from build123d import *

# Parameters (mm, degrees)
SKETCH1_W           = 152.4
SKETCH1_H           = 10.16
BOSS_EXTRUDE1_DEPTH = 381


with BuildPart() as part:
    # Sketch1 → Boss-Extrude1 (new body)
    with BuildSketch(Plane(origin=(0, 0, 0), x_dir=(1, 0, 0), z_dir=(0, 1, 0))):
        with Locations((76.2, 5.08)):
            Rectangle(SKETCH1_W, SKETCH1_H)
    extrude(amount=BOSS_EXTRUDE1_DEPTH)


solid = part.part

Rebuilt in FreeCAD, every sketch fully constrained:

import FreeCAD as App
import Part
import Sketcher
Q = App.Units.Quantity


def add_polygon(sketch, points):
    """Adds a closed chain of lines whose ends are joined by coincident constraints."""
    first, n = sketch.GeometryCount, len(points)
    for a, b in zip(points, points[1:] + points[:1]):
        sketch.addGeometry(Part.LineSegment(App.Vector(*a, 0), App.Vector(*b, 0)), False)
    for i in range(n):
        sketch.addConstraint(Sketcher.Constraint("Coincident", first + i, 2, first + (i + 1) % n, 1))

doc = App.newDocument("Part")
params = doc.addObject("Spreadsheet::Sheet", "Params")
for row, (alias, value) in enumerate([
    ("sketch1_width", "6 in"),
    ("sketch1_height", "0.4 in"),
    ("pad1_length", "15 in"),
], start=1):
    params.set(f"A{row}", alias)
    params.set(f"B{row}", "=" + value)
    params.setAlias(f"B{row}", alias)

body = doc.addObject("PartDesign::Body", "Body")

sketch1 = body.newObject("Sketcher::SketchObject", "Sketch")
sketch1.AttachmentSupport = (doc.getObject("XZ_Plane"), [""])
sketch1.MapMode = "FlatFace"
add_polygon(sketch1, [(0, -10), (0, 0), (152, 0), (152, -10)])
sketch1.addConstraint([
    Sketcher.Constraint("Vertical", 0),
    Sketcher.Constraint("Horizontal", 1),
    Sketcher.Constraint("Vertical", 2),
    Sketcher.Constraint("Horizontal", 3),
    Sketcher.Constraint("Coincident", 0, 2, -1, 1),
    Sketcher.Constraint("DistanceX", 1, 1, 1, 2, Q("6 in")),
    Sketcher.Constraint("DistanceY", 0, 1, 0, 2, Q("0.4 in")),
])
sketch1.setExpression("Constraints[9]", "Params.sketch1_width")
sketch1.setExpression("Constraints[10]", "Params.sketch1_height")
pad1 = body.newObject("PartDesign::Pad", "Pad")
pad1.Profile = sketch1
pad1.setExpression("Length", "Params.pad1_length")
pad1.Reversed = True

doc.recompute()
